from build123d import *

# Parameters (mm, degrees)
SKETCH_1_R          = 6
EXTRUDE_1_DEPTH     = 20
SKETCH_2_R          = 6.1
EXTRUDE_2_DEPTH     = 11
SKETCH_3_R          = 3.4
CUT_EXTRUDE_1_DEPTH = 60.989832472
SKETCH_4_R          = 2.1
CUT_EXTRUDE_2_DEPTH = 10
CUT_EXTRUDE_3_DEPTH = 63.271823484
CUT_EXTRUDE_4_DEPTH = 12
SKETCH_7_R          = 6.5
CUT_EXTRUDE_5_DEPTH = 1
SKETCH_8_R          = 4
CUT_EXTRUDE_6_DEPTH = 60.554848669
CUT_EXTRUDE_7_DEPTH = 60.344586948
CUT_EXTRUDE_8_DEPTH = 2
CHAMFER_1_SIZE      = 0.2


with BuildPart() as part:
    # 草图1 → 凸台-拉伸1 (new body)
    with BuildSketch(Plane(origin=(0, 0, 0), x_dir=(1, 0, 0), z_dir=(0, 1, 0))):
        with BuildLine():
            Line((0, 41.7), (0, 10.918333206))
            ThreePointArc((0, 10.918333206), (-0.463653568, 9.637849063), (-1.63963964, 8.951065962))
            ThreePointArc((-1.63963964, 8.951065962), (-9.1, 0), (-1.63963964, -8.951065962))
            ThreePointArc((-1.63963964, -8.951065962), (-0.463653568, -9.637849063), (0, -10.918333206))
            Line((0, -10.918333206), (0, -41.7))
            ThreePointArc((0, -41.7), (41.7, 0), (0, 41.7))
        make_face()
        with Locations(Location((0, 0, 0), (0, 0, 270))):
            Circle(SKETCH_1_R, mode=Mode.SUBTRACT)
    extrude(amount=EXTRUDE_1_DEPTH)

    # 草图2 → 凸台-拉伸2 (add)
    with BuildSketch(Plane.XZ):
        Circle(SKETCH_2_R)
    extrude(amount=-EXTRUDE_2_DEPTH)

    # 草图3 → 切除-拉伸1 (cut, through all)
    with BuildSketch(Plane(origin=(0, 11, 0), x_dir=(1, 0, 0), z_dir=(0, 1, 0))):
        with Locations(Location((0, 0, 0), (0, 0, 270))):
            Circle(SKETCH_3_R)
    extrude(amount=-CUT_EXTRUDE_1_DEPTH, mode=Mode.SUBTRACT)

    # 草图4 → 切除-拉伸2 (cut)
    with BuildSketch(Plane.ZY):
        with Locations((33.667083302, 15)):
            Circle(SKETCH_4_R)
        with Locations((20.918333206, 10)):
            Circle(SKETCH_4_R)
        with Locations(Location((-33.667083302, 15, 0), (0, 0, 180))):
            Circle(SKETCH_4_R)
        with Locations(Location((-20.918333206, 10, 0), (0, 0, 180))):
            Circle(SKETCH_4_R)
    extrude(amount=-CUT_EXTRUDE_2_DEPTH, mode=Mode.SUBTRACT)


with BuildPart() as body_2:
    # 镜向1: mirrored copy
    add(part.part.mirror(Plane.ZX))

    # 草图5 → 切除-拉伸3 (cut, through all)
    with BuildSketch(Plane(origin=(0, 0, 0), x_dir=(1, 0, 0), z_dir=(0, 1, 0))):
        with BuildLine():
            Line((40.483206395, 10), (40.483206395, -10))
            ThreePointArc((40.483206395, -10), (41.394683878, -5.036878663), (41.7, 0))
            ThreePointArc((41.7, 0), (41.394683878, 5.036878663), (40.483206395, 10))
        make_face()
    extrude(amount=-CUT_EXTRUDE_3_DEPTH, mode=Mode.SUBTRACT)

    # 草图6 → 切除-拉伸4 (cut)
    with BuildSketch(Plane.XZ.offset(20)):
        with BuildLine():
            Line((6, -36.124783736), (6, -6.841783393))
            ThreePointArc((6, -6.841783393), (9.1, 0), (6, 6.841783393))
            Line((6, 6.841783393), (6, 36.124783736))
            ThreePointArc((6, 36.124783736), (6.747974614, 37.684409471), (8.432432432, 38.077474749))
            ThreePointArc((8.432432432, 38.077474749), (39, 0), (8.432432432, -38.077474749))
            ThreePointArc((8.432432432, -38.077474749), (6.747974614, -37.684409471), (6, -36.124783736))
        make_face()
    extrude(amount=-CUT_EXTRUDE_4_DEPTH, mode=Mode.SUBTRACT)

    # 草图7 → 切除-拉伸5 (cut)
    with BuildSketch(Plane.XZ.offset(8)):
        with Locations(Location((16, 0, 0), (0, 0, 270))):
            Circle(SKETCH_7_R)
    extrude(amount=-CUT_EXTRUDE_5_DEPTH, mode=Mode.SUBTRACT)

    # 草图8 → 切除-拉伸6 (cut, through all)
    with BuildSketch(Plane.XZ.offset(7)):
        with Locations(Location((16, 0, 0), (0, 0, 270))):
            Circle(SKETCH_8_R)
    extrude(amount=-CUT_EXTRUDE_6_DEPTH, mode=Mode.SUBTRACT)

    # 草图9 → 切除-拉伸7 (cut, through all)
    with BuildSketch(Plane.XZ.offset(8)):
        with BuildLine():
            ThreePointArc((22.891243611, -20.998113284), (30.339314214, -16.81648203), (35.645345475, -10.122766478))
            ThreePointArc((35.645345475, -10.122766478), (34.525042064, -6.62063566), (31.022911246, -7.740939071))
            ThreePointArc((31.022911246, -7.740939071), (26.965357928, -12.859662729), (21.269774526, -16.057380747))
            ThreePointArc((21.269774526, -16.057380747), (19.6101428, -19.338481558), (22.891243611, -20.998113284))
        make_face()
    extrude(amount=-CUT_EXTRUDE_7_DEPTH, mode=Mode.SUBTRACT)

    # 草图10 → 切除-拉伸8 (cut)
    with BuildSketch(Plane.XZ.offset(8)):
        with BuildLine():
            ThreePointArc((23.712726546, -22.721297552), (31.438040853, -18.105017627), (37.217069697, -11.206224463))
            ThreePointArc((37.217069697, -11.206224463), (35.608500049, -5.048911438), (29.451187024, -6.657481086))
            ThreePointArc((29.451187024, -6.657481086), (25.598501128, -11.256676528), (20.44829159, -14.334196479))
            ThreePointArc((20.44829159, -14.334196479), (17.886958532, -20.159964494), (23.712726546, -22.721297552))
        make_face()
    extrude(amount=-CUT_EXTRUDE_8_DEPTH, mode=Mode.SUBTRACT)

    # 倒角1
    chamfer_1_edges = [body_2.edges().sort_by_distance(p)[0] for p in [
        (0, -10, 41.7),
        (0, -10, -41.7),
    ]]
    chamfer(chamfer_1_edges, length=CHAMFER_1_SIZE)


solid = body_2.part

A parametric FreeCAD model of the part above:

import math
import FreeCAD as App
import Part
import Sketcher
from FreeCAD import Vector


def edges_at(feature, points):
    """Names of the edges that pass closest to the given points."""
    edges = feature.Shape.Edges
    near = lambda p: min(range(len(edges)), key=lambda i: edges[i].distToShape(Part.Vertex(*p))[0])
    return sorted({f"Edge{near(p) + 1}" for p in points})

doc = App.newDocument("Part")
body = doc.addObject("PartDesign::Body", "Body")

sketch1 = doc.addObject("Sketcher::SketchObject", "Sketch")
body.addObject(sketch1)
sketch1.AttachmentSupport = (doc.XZ_Plane, [""])
sketch1.MapMode = "FlatFace"
sketch1.addGeometry(Part.LineSegment(Vector(0, -41.7, 0), Vector(0, -10.9, 0)), False)
sketch1.addGeometry(Part.ArcOfCircle(Part.Circle(Vector(-2, -10.9, 0), Vector(0, 0, 1), 2), math.radians(0), math.radians(80)), False)
sketch1.addGeometry(Part.ArcOfCircle(Part.Circle(Vector(0, 0, 0), Vector(0, 0, 1), 9.1), math.radians(100), math.radians(260)), False)
sketch1.addGeometry(Part.ArcOfCircle(Part.Circle(Vector(-2, 10.9, 0), Vector(0, 0, 1), 2), math.radians(-80), math.radians(0)), False)
sketch1.addGeometry(Part.LineSegment(Vector(0, 10.9, 0), Vector(0, 41.7, 0)), False)
sketch1.addGeometry(Part.ArcOfCircle(Part.Circle(Vector(0, 0, 0), Vector(0, 0, 1), 41.7), math.radians(-90), math.radians(90)), False)
sketch1.addGeometry(Part.Circle(Vector(0, 0, 0), Vector(0, 0, 1), 6), False)
sketch1.addConstraint(Sketcher.Constraint("Tangent", 0, 2, 1, 1))
sketch1.addConstraint(Sketcher.Constraint("Tangent", 1, 2, 2, 2))
sketch1.addConstraint(Sketcher.Constraint("Tangent", 2, 1, 3, 1))
sketch1.addConstraint(Sketcher.Constraint("Tangent", 3, 2, 4, 1))
sketch1.addConstraint(Sketcher.Constraint("Coincident", 4, 2, 5, 2))
sketch1.addConstraint(Sketcher.Constraint("Coincident", 5, 1, 0, 1))
sketch1.addConstraint(Sketcher.Constraint("Vertical", 0))
sketch1.addConstraint(Sketcher.Constraint("Vertical", 4))
sketch1.addConstraint(Sketcher.Constraint("Coincident", 2, 3, -1, 1))
sketch1.addConstraint(Sketcher.Constraint("Coincident", 5, 3, -1, 1))
sketch1.addConstraint(Sketcher.Constraint("Coincident", 6, 3, -1, 1))
sketch1.addConstraint(Sketcher.Constraint("Equal", 1, 3))
sketch1.addConstraint(Sketcher.Constraint("Symmetric", 0, 2, 3, 2, -1, 1))
sketch1.addConstraint(Sketcher.Constraint("Diameter", 6, 12.0))
sketch1.addConstraint(Sketcher.Constraint("Radius", 1, 2.0))
sketch1.addConstraint(Sketcher.Constraint("Radius", 2, 9.1))
sketch1.addConstraint(Sketcher.Constraint("Radius", 5, 41.7))
pad1 = doc.addObject("PartDesign::Pad", "Pad")
body.addObject(pad1)
pad1.Profile = sketch1
pad1.Length = 20
pad1.Reversed = True

sketch2 = doc.addObject("Sketcher::SketchObject", "Sketch001")
body.addObject(sketch2)
sketch2.AttachmentSupport = (doc.XZ_Plane, [""])
sketch2.MapMode = "FlatFace"
sketch2.addGeometry(Part.Circle(Vector(0, 0, 0), Vector(0, 0, 1), 6), False)
sketch2.addConstraint(Sketcher.Constraint("Coincident", 0, 3, -1, 1))
sketch2.addConstraint(Sketcher.Constraint("Diameter", 0, 12.2))
pad2 = doc.addObject("PartDesign::Pad", "Pad001")
body.addObject(pad2)
pad2.Profile = sketch2
pad2.Length = 11
pad2.Reversed = True

sketch3 = doc.addObject("Sketcher::SketchObject", "Sketch002")
body.addObject(sketch3)
sketch3.AttachmentSupport = (doc.XZ_Plane, [""])
sketch3.MapMode = "FlatFace"
sketch3.AttachmentOffset = App.Placement(Vector(0, 0, -11), App.Rotation())
sketch3.addGeometry(Part.Circle(Vector(0, 0, 0), Vector(0, 0, 1), 3.4), False)
sketch3.addConstraint(Sketcher.Constraint("Coincident", 0, 3, -1, 1))
sketch3.addConstraint(Sketcher.Constraint("Diameter", 0, 6.8))
pocket1 = doc.addObject("PartDesign::Pocket", "Pocket")
body.addObject(pocket1)
pocket1.Profile = sketch3
pocket1.Type = "ThroughAll"
pocket1.Reversed = True

sketch4 = doc.addObject("Sketcher::SketchObject", "Sketch003")
body.addObject(sketch4)
sketch4.AttachmentSupport = (doc.YZ_Plane, [""])
sketch4.MapMode = "FlatFace"
sketch4.addGeometry(Part.Circle(Vector(15, 33.7, 0), Vector(0, 0, 1), 2.1), False)
sketch4.addGeometry(Part.Circle(Vector(10, 20.9, 0), Vector(0, 0, 1), 2.1), False)
sketch4.addGeometry(Part.Circle(Vector(15, -33.7, 0), Vector(0, 0, 1), 2.1), False)
sketch4.addGeometry(Part.Circle(Vector(10, -20.9, 0), Vector(0, 0, 1), 2.1), False)
sketch4.addConstraint(Sketcher.Constraint("Equal", 0, 1))
sketch4.addConstraint(Sketcher.Constraint("Equal", 1, 2))
sketch4.addConstraint(Sketcher.Constraint("Equal", 2, 3))
sketch4.addConstraint(Sketcher.Constraint("Symmetric", 0, 3, 2, 3, -1))
sketch4.addConstraint(Sketcher.Constraint("Symmetric", 1, 3, 3, 3, -1))
sketch4.addConstraint(Sketcher.Constraint("Diameter", 0, 4.2))
sketch4.addConstraint(Sketcher.Constraint("DistanceX", -1, 1, 0, 3, 15.0))
sketch4.addConstraint(Sketcher.Constraint("DistanceX", -1, 1, 1, 3, 10.0))
sketch4.addConstraint(Sketcher.Constraint("DistanceY", 1, 3, 0, 3, 12.74875))
sketch4.addConstraint(Sketcher.Constraint("DistanceY", -1, 1, 0, 3, 33.667083))
pocket2 = doc.addObject("PartDesign::Pocket", "Pocket001")
body.addObject(pocket2)
pocket2.Profile = sketch4
pocket2.Length = 10
pocket2.Reversed = True
body2 = doc.addObject("PartDesign::Body", "Body001")
doc.recompute()

mirroring = doc.addObject("Part::Mirroring", "Mirroring")
mirroring.Source = body
mirroring.Base = Vector(0, 0, 0)
mirroring.Normal = Vector(0, 1, 0)
body2.BaseFeature = mirroring
doc.recompute()

sketch5 = doc.addObject("Sketcher::SketchObject", "Sketch004")
body2.addObject(sketch5)
sketch5.AttachmentSupport = (doc.getObject("XZ_Plane001"), [""])
sketch5.MapMode = "FlatFace"
sketch5.addGeometry(Part.LineSegment(Vector(40, -10, 0), Vector(40, 10, 0)), False)
sketch5.addGeometry(Part.ArcOfCircle(Part.Circle(Vector(0, 0, 0), Vector(0, 0, 1), 42), math.radians(0), math.radians(13.88)), False)
sketch5.addGeometry(Part.ArcOfCircle(Part.Circle(Vector(0, 0, 0), Vector(0, 0, 1), 42), math.radians(-13.88), math.radians(0)), False)
sketch5.addConstraint(Sketcher.Constraint("Coincident", 0, 2, 1, 2))
sketch5.addConstraint(Sketcher.Constraint("Tangent", 1, 1, 2, 2))
sketch5.addConstraint(Sketcher.Constraint("Coincident", 2, 1, 0, 1))
sketch5.addConstraint(Sketcher.Constraint("Vertical", 0))
sketch5.addConstraint(Sketcher.Constraint("Coincident", 1, 3, -1, 1))
sketch5.addConstraint(Sketcher.Constraint("Equal", 1, 2))
sketch5.addConstraint(Sketcher.Constraint("PointOnObject", 1, 1, -1))
sketch5.addConstraint(Sketcher.Constraint("Radius", 1, 41.7))
sketch5.addConstraint(Sketcher.Constraint("DistanceY", 0, 1, 0, 2, 20.0))
pocket3 = doc.addObject("PartDesign::Pocket", "Pocket002")
body2.addObject(pocket3)
pocket3.Profile = sketch5
pocket3.Type = "ThroughAll"
pocket3.Reversed = True

sketch6 = doc.addObject("Sketcher::SketchObject", "Sketch005")
body2.addObject(sketch6)
sketch6.AttachmentSupport = (doc.getObject("XZ_Plane001"), [""])
sketch6.MapMode = "FlatFace"
sketch6.AttachmentOffset = App.Placement(Vector(0, 0, 20), App.Rotation())
sketch6.addGeometry(Part.LineSegment(Vector(6, -6.8, 0), Vector(6, -36.1, 0)), False)
sketch6.addGeometry(Part.ArcOfCircle(Part.Circle(Vector(8, -36.1, 0), Vector(0, 0, 1), 2), math.radians(180), math.radians(282)), False)
sketch6.addGeometry(Part.ArcOfCircle(Part.Circle(Vector(0, 0, 0), Vector(0, 0, 1), 39), math.radians(-78), math.radians(78)), False)
sketch6.addGeometry(Part.ArcOfCircle(Part.Circle(Vector(8, 36.1, 0), Vector(0, 0, 1), 2), math.radians(78), math.radians(180)), False)
sketch6.addGeometry(Part.LineSegment(Vector(6, 36.1, 0), Vector(6, 6.8, 0)), False)
sketch6.addGeometry(Part.ArcOfCircle(Part.Circle(Vector(0, 0, 0), Vector(0, 0, 1), 9.1), math.radians(-49), math.radians(49)), False)
sketch6.addConstraint(Sketcher.Constraint("Tangent", 0, 2, 1, 1))
sketch6.addConstraint(Sketcher.Constraint("Tangent", 1, 2, 2, 1))
sketch6.addConstraint(Sketcher.Constraint("Tangent", 2, 2, 3, 1))
sketch6.addConstraint(Sketcher.Constraint("Tangent", 3, 2, 4, 1))
sketch6.addConstraint(Sketcher.Constraint("Coincident", 4, 2, 5, 2))
sketch6.addConstraint(Sketcher.Constraint("Coincident", 5, 1, 0, 1))
sketch6.addConstraint(Sketcher.Constraint("Vertical", 0))
sketch6.addConstraint(Sketcher.Constraint("Vertical", 4))
sketch6.addConstraint(Sketcher.Constraint("Coincident", 2, 3, -1, 1))
sketch6.addConstraint(Sketcher.Constraint("Coincident", 5, 3, -1, 1))
sketch6.addConstraint(Sketcher.Constraint("Equal", 1, 3))
sketch6.addConstraint(Sketcher.Constraint("Vertical", 1, 3, 3, 3))
sketch6.addConstraint(Sketcher.Constraint("Radius", 1, 2.0))
sketch6.addConstraint(Sketcher.Constraint("Radius", 2, 39.0))
sketch6.addConstraint(Sketcher.Constraint("Radius", 5, 9.1))
sketch6.addConstraint(Sketcher.Constraint("DistanceX", -1, 1, 1, 3, 8.0))
pocket4 = doc.addObject("PartDesign::Pocket", "Pocket003")
body2.addObject(pocket4)
pocket4.Profile = sketch6
pocket4.Length = 12

sketch7 = doc.addObject("Sketcher::SketchObject", "Sketch006")
body2.addObject(sketch7)
sketch7.AttachmentSupport = (doc.getObject("XZ_Plane001"), [""])
sketch7.MapMode = "FlatFace"
sketch7.AttachmentOffset = App.Placement(Vector(0, 0, 8), App.Rotation())
sketch7.addGeometry(Part.Circle(Vector(16, 0, 0), Vector(0, 0, 1), 6), False)
sketch7.addConstraint(Sketcher.Constraint("PointOnObject", 0, 3, -1))
sketch7.addConstraint(Sketcher.Constraint("Diameter", 0, 13.0))
sketch7.addConstraint(Sketcher.Constraint("DistanceX", -1, 1, 0, 3, 16.0))
pocket5 = doc.addObject("PartDesign::Pocket", "Pocket004")
body2.addObject(pocket5)
pocket5.Profile = sketch7
pocket5.Length = 1

sketch8 = doc.addObject("Sketcher::SketchObject", "Sketch007")
body2.addObject(sketch8)
sketch8.AttachmentSupport = (doc.getObject("XZ_Plane001"), [""])
sketch8.MapMode = "FlatFace"
sketch8.AttachmentOffset = App.Placement(Vector(0, 0, 7), App.Rotation())
sketch8.addGeometry(Part.Circle(Vector(16, 0, 0), Vector(0, 0, 1), 4), False)
sketch8.addConstraint(Sketcher.Constraint("PointOnObject", 0, 3, -1))
sketch8.addConstraint(Sketcher.Constraint("Diameter", 0, 8.0))
sketch8.addConstraint(Sketcher.Constraint("DistanceX", -1, 1, 0, 3, 16.0))
pocket6 = doc.addObject("PartDesign::Pocket", "Pocket005")
body2.addObject(pocket6)
pocket6.Profile = sketch8
pocket6.Type = "ThroughAll"

sketch9 = doc.addObject("Sketcher::SketchObject", "Sketch008")
body2.addObject(sketch9)
sketch9.AttachmentSupport = (doc.getObject("XZ_Plane001"), [""])
sketch9.MapMode = "FlatFace"
sketch9.AttachmentOffset = App.Placement(Vector(0, 0, 8), App.Rotation())
sketch9.addGeometry(Part.ArcOfCircle(Part.Circle(Vector(16, 0, 0), Vector(0, 0, 1), 22.1), math.radians(-72), math.radians(-27)), False)
sketch9.addGeometry(Part.ArcOfCircle(Part.Circle(Vector(33.3, -8.9, 0), Vector(0, 0, 1), 2.6), math.radians(-27), math.radians(153)), False)
sketch9.addGeometry(Part.ArcOfCircle(Part.Circle(Vector(16, 0, 0), Vector(0, 0, 1), 16.9), math.radians(-72), math.radians(-27)), False)
sketch9.addGeometry(Part.ArcOfCircle(Part.Circle(Vector(22.1, -18.5, 0), Vector(0, 0, 1), 2.6), math.radians(108), math.radians(288)), False)
sketch9.addConstraint(Sketcher.Constraint("Tangent", 0, 2, 1, 1))
sketch9.addConstraint(Sketcher.Constraint("Tangent", 1, 2, 2, 2))
sketch9.addConstraint(Sketcher.Constraint("Tangent", 2, 1, 3, 1))
sketch9.addConstraint(Sketcher.Constraint("Tangent", 3, 2, 0, 1))
sketch9.addConstraint(Sketcher.Constraint("Coincident", 2, 3, 0, 3))
sketch9.addConstraint(Sketcher.Constraint("PointOnObject", 0, 3, -1))
sketch9.addConstraint(Sketcher.Constraint("Radius", 0, 22.1))
sketch9.addConstraint(Sketcher.Constraint("Radius", 1, 2.6))
sketch9.addConstraint(Sketcher.Constraint("DistanceX", -1, 1, 0, 3, 16.0))
sketch9.addConstraint(Sketcher.Constraint("DistanceX", 3, 2, 0, 2, 12.754102))
sketch9.addConstraint(Sketcher.Constraint("DistanceX", -1, 1, 1, 3, 33.334128))
pocket7 = doc.addObject("PartDesign::Pocket", "Pocket006")
body2.addObject(pocket7)
pocket7.Profile = sketch9
pocket7.Type = "ThroughAll"

sketch10 = doc.addObject("Sketcher::SketchObject", "Sketch009")
body2.addObject(sketch10)
sketch10.AttachmentSupport = (doc.getObject("XZ_Plane001"), [""])
sketch10.MapMode = "FlatFace"
sketch10.AttachmentOffset = App.Placement(Vector(0, 0, 8), App.Rotation())
sketch10.addGeometry(Part.ArcOfCircle(Part.Circle(Vector(13.9, 2.4, 0), Vector(0, 0, 1), 27), math.radians(-69), math.radians(-30)), False)
sketch10.addGeometry(Part.ArcOfCircle(Part.Circle(Vector(33.3, -8.9, 0), Vector(0, 0, 1), 4.5), math.radians(-30), math.radians(150)), False)
sketch10.addGeometry(Part.ArcOfCircle(Part.Circle(Vector(13.9, 2.4, 0), Vector(0, 0, 1), 18), math.radians(-69), math.radians(-30)), False)
sketch10.addGeometry(Part.ArcOfCircle(Part.Circle(Vector(22.1, -18.5, 0), Vector(0, 0, 1), 4.5), math.radians(111), math.radians(291)), False)
sketch10.addConstraint(Sketcher.Constraint("Tangent", 0, 2, 1, 1))
sketch10.addConstraint(Sketcher.Constraint("Tangent", 1, 2, 2, 2))
sketch10.addConstraint(Sketcher.Constraint("Tangent", 2, 1, 3, 1))
sketch10.addConstraint(Sketcher.Constraint("Tangent", 3, 2, 0, 1))
sketch10.addConstraint(Sketcher.Constraint("Coincident", 2, 3, 0, 3))
sketch10.addConstraint(Sketcher.Constraint("Radius", 0, 27.0))
sketch10.addConstraint(Sketcher.Constraint("Radius", 2, 18.0))
sketch10.addConstraint(Sketcher.Constraint("DistanceY", 3, 2, 2, 1, 8.387101))
sketch10.addConstraint(Sketcher.Constraint("DistanceX", 3, 2, 1, 3, 9.621402))
sketch10.addConstraint(Sketcher.Constraint("DistanceX", -1, 1, 0, 3, 13.919422))
sketch10.addConstraint(Sketcher.Constraint("DistanceY", 1, 2, -1, 1, 6.657481))
pocket8 = doc.addObject("PartDesign::Pocket", "Pocket007")
body2.addObject(pocket8)
pocket8.Profile = sketch10
pocket8.Length = 2
doc.recompute()

chamfer = doc.addObject("PartDesign::Chamfer", "Chamfer")
body2.addObject(chamfer)
chamfer.Base = (pocket8, edges_at(pocket8, [(0, -10, 41.7), (0, -10, -41.7)]))
chamfer.Size = 0.2
body.Visibility = False
mirroring.Visibility = False

doc.recompute()
